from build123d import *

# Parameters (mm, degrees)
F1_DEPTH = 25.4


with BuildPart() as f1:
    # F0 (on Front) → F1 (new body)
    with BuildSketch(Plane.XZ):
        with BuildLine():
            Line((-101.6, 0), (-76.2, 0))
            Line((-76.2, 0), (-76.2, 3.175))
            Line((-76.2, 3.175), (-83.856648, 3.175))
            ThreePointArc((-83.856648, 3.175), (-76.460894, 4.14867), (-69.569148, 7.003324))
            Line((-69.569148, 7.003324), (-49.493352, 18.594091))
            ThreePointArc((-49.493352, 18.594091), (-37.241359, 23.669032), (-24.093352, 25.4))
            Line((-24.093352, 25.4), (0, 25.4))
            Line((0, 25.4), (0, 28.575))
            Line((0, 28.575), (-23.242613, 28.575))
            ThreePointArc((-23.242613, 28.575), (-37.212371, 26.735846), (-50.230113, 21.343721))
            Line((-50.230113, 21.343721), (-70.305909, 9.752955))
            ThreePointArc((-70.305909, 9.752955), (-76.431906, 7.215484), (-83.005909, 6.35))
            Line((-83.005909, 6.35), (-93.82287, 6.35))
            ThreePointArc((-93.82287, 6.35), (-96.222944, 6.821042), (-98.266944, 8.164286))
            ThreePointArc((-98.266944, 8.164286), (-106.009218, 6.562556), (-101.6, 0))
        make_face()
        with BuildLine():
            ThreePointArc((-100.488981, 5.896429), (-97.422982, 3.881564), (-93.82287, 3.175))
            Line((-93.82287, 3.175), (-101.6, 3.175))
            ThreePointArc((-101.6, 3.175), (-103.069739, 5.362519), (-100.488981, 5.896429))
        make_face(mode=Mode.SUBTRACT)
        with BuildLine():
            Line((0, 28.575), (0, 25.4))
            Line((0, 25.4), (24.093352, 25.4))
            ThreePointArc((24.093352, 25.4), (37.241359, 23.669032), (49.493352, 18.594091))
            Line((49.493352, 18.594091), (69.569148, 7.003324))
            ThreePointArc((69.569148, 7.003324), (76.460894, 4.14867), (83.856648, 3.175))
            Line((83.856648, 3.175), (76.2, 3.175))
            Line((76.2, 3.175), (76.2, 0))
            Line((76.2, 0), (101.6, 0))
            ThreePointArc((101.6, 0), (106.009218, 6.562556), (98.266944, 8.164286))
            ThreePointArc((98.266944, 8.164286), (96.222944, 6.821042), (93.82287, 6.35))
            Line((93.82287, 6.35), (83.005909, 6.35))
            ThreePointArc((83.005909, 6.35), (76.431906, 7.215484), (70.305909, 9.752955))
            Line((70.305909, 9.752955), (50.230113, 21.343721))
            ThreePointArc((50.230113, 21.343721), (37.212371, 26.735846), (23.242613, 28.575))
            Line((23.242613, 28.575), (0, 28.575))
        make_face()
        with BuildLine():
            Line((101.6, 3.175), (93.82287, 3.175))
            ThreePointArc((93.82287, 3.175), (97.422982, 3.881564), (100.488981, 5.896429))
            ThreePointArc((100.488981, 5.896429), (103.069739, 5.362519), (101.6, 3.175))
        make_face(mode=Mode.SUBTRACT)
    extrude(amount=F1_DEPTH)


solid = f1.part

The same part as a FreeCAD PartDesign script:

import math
import FreeCAD as App
import Part
import Sketcher
from FreeCAD import Vector
Q = App.Units.Quantity

doc = App.newDocument("Part")
params = doc.addObject("Spreadsheet::Sheet", "Params")
for row, (alias, value) in enumerate([
    ("sketch1_radius", "1.0000001 in"),
    ("sketch1_width", "1 in"),
    ("sketch1_radius2", "0.2499998 in"),
    ("sketch1_radius3", "0.1875 in"),
    ("sketch1_radius4", "0.0625 in"),
    ("pad1_length", "1 in"),
], start=1):
    params.set(f"A{row}", alias)
    params.set(f"B{row}", "=" + value)
    params.setAlias(f"B{row}", alias)

body = doc.addObject("PartDesign::Body", "Body")

sketch1 = body.newObject("Sketcher::SketchObject", "Sketch")
sketch1.AttachmentSupport = (doc.getObject("XZ_Plane"), [""])
sketch1.MapMode = "FlatFace"
sketch1.addGeometry([
    Part.LineSegment(Vector(-101.6, 0, 0), Vector(-76.2, 0, 0)),
    Part.LineSegment(Vector(-76.2, 0, 0), Vector(-76.2, 3.2, 0)),
    Part.LineSegment(Vector(-76.2, 3.2, 0), Vector(-83.9, 3.2, 0)),
    Part.ArcOfCircle(Part.Circle(Vector(-83.9, 31.8, 0), Vector(0, 0, 1), 28.6), math.radians(-90), math.radians(-60)),
    Part.LineSegment(Vector(-69.6, 7, 0), Vector(-49.5, 18.6, 0)),
    Part.ArcOfCircle(Part.Circle(Vector(-24.1, -25.4, 0), Vector(0, 0, 1), 50.8), math.radians(90), math.radians(120)),
    Part.LineSegment(Vector(-24.1, 25.4, 0), Vector(24.1, 25.4, 0)),
    Part.ArcOfCircle(Part.Circle(Vector(24.1, -25.4, 0), Vector(0, 0, 1), 50.8), math.radians(60), math.radians(90)),
    Part.LineSegment(Vector(49.5, 18.6, 0), Vector(69.6, 7, 0)),
    Part.ArcOfCircle(Part.Circle(Vector(83.9, 31.8, 0), Vector(0, 0, 1), 28.6), math.radians(-120), math.radians(-90)),
    Part.LineSegment(Vector(83.9, 3.2, 0), Vector(76.2, 3.2, 0)),
    Part.LineSegment(Vector(76.2, 3.2, 0), Vector(76.2, 0, 0)),
    Part.LineSegment(Vector(76.2, 0, 0), Vector(101.6, 0, 0)),
    Part.ArcOfCircle(Part.Circle(Vector(101.6, 4.8, 0), Vector(0, 0, 1), 4.8), math.radians(-90), math.radians(134)),
    Part.ArcOfCircle(Part.Circle(Vector(93.8, 12.7, 0), Vector(0, 0, 1), 6.3), math.radians(-90), math.radians(-46)),
    Part.LineSegment(Vector(93.8, 6.3, 0), Vector(83, 6.3, 0)),
    Part.ArcOfCircle(Part.Circle(Vector(83, 31.8, 0), Vector(0, 0, 1), 25.4), math.radians(-120), math.radians(-90)),
    Part.LineSegment(Vector(70.3, 9.8, 0), Vector(50.2, 21.3, 0)),
    Part.ArcOfCircle(Part.Circle(Vector(23.2, -25.4, 0), Vector(0, 0, 1), 54), math.radians(60), math.radians(90)),
    Part.LineSegment(Vector(23.2, 28.6, 0), Vector(-23.2, 28.6, 0)),
    Part.ArcOfCircle(Part.Circle(Vector(-23.2, -25.4, 0), Vector(0, 0, 1), 54), math.radians(90), math.radians(120)),
    Part.LineSegment(Vector(-50.2, 21.3, 0), Vector(-70.3, 9.8, 0)),
    Part.ArcOfCircle(Part.Circle(Vector(-83, 31.8, 0), Vector(0, 0, 1), 25.4), math.radians(-90), math.radians(-60)),
    Part.LineSegment(Vector(-83, 6.3, 0), Vector(-93.8, 6.3, 0)),
    Part.ArcOfCircle(Part.Circle(Vector(-93.8, 12.7, 0), Vector(0, 0, 1), 6.3), math.radians(-134), math.radians(-90)),
    Part.ArcOfCircle(Part.Circle(Vector(-101.6, 4.8, 0), Vector(0, 0, 1), 4.8), math.radians(46), math.radians(270)),
    Part.ArcOfCircle(Part.Circle(Vector(101.6, 4.8, 0), Vector(0, 0, 1), 1.6), math.radians(-90), math.radians(134)),
    Part.LineSegment(Vector(101.6, 3.2, 0), Vector(93.8, 3.2, 0)),
    Part.ArcOfCircle(Part.Circle(Vector(93.8, 12.7, 0), Vector(0, 0, 1), 9.5), math.radians(-90), math.radians(-46)),
    Part.ArcOfCircle(Part.Circle(Vector(-101.6, 4.8, 0), Vector(0, 0, 1), 1.6), math.radians(46), math.radians(270)),
    Part.ArcOfCircle(Part.Circle(Vector(-93.8, 12.7, 0), Vector(0, 0, 1), 9.5), math.radians(-134), math.radians(-90)),
    Part.LineSegment(Vector(-93.8, 3.2, 0), Vector(-101.6, 3.2, 0)),
], False)
sketch1.addConstraint([
    Sketcher.Constraint("Coincident", 0, 2, 1, 1),
    Sketcher.Constraint("Coincident", 1, 2, 2, 1),
    Sketcher.Constraint("Tangent", 2, 2, 3, 1),
    Sketcher.Constraint("Tangent", 3, 2, 4, 1),
    Sketcher.Constraint("Tangent", 4, 2, 5, 2),
    Sketcher.Constraint("Tangent", 5, 1, 6, 1),
    Sketcher.Constraint("Tangent", 6, 2, 7, 2),
    Sketcher.Constraint("Tangent", 7, 1, 8, 1),
    Sketcher.Constraint("Tangent", 8, 2, 9, 1),
    Sketcher.Constraint("Tangent", 9, 2, 10, 1),
    Sketcher.Constraint("Coincident", 10, 2, 11, 1),
    Sketcher.Constraint("Coincident", 11, 2, 12, 1),
    Sketcher.Constraint("Tangent", 12, 2, 13, 1),
    Sketcher.Constraint("Tangent", 13, 2, 14, 2),
    Sketcher.Constraint("Tangent", 14, 1, 15, 1),
    Sketcher.Constraint("Tangent", 15, 2, 16, 2),
    Sketcher.Constraint("Tangent", 16, 1, 17, 1),
    Sketcher.Constraint("Tangent", 17, 2, 18, 1),
    Sketcher.Constraint("Tangent", 18, 2, 19, 1),
    Sketcher.Constraint("Tangent", 19, 2, 20, 1),
    Sketcher.Constraint("Tangent", 20, 2, 21, 1),
    Sketcher.Constraint("Tangent", 21, 2, 22, 2),
    Sketcher.Constraint("Tangent", 22, 1, 23, 1),
    Sketcher.Constraint("Tangent", 23, 2, 24, 2),
    Sketcher.Constraint("Tangent", 24, 1, 25, 1),
    Sketcher.Constraint("Tangent", 25, 2, 0, 1),
    Sketcher.Constraint("Tangent", 26, 1, 27, 1),
    Sketcher.Constraint("Tangent", 27, 2, 28, 1),
    Sketcher.Constraint("Tangent", 28, 2, 26, 2),
    Sketcher.Constraint("Tangent", 29, 1, 30, 1),
    Sketcher.Constraint("Tangent", 30, 2, 31, 1),
    Sketcher.Constraint("Tangent", 31, 2, 29, 2),
    Sketcher.Constraint("Horizontal", 0),
    Sketcher.Constraint("Vertical", 1),
    Sketcher.Constraint("Horizontal", 2),
    Sketcher.Constraint("Horizontal", 6),
    Sketcher.Constraint("Horizontal", 10),
    Sketcher.Constraint("Vertical", 11),
    Sketcher.Constraint("Horizontal", 12),
    Sketcher.Constraint("Horizontal", 15),
    Sketcher.Constraint("Horizontal", 19),
    Sketcher.Constraint("Horizontal", 23),
    Sketcher.Constraint("Horizontal", 27),
    Sketcher.Constraint("Horizontal", 31),
    Sketcher.Constraint("Coincident", 26, 3, 13, 3),
    Sketcher.Constraint("Coincident", 28, 3, 14, 3),
    Sketcher.Constraint("Coincident", 29, 3, 25, 3),
    Sketcher.Constraint("Coincident", 30, 3, 24, 3),
    Sketcher.Constraint("Equal", 5, 7),
    Sketcher.Constraint("Equal", 3, 9),
    Sketcher.Constraint("Equal", 18, 20),
    Sketcher.Constraint("Equal", 16, 22),
    Sketcher.Constraint("Equal", 14, 24),
    Sketcher.Constraint("Equal", 13, 25),
    Sketcher.Constraint("Equal", 26, 29),
    Sketcher.Constraint("Symmetric", 0, 2, 11, 2, -1, 1),
    Sketcher.Constraint("Symmetric", 3, 3, 9, 3, -2),
    Sketcher.Constraint("Symmetric", 16, 3, 22, 3, -2),
    Sketcher.Constraint("Parallel", 8, 17),
    Sketcher.Constraint("Parallel", 4, 21),
    Sketcher.Constraint("Horizontal", 7, 3, 18, 3),
    Sketcher.Constraint("Horizontal", 4, 2, 7, 1),
    Sketcher.Constraint("Horizontal", 10, 2, 26, 1),
    Sketcher.Constraint("Equal", 0, 12),
    Sketcher.Constraint("Equal", 8, 17),
    Sketcher.Constraint("Radius", 16, Q("1.0000001 in")),
    Sketcher.Constraint("DistanceX", 0, 1, 0, 2, Q("1 in")),
    Sketcher.Constraint("Radius", 14, Q("0.2499998 in")),
    Sketcher.Constraint("DistanceX", -1, 1, 13, 3, Q("4 in")),
    Sketcher.Constraint("DistanceY", -1, 1, 5, 1, Q("1 in")),
    Sketcher.Constraint("Angle", 4, Q("30.000002 deg")),
    Sketcher.Constraint("Radius", 13, Q("0.1875 in")),
    Sketcher.Constraint("Radius", 26, Q("0.0625 in")),
    Sketcher.Constraint("DistanceX", 4, 2, 5, 1, Q("1 in")),
    Sketcher.Constraint("DistanceX", 3, 3, 7, 3, Q("4.2500001 in")),
    Sketcher.Constraint("DistanceY", -1, 1, 18, 2, Q("1.125 in")),
    Sketcher.Constraint("DistanceX", 15, 2, 15, 1, 10.816961),
])
sketch1.setExpression("Constraints[65]", "Params.sketch1_radius")
sketch1.setExpression("Constraints[66]", "Params.sketch1_width")
sketch1.setExpression("Constraints[67]", "Params.sketch1_radius2")
sketch1.setExpression("Constraints[71]", "Params.sketch1_radius3")
sketch1.setExpression("Constraints[72]", "Params.sketch1_radius4")
pad1 = body.newObject("PartDesign::Pad", "Pad")
pad1.Profile = sketch1
pad1.setExpression("Length", "Params.pad1_length")

doc.recompute()
